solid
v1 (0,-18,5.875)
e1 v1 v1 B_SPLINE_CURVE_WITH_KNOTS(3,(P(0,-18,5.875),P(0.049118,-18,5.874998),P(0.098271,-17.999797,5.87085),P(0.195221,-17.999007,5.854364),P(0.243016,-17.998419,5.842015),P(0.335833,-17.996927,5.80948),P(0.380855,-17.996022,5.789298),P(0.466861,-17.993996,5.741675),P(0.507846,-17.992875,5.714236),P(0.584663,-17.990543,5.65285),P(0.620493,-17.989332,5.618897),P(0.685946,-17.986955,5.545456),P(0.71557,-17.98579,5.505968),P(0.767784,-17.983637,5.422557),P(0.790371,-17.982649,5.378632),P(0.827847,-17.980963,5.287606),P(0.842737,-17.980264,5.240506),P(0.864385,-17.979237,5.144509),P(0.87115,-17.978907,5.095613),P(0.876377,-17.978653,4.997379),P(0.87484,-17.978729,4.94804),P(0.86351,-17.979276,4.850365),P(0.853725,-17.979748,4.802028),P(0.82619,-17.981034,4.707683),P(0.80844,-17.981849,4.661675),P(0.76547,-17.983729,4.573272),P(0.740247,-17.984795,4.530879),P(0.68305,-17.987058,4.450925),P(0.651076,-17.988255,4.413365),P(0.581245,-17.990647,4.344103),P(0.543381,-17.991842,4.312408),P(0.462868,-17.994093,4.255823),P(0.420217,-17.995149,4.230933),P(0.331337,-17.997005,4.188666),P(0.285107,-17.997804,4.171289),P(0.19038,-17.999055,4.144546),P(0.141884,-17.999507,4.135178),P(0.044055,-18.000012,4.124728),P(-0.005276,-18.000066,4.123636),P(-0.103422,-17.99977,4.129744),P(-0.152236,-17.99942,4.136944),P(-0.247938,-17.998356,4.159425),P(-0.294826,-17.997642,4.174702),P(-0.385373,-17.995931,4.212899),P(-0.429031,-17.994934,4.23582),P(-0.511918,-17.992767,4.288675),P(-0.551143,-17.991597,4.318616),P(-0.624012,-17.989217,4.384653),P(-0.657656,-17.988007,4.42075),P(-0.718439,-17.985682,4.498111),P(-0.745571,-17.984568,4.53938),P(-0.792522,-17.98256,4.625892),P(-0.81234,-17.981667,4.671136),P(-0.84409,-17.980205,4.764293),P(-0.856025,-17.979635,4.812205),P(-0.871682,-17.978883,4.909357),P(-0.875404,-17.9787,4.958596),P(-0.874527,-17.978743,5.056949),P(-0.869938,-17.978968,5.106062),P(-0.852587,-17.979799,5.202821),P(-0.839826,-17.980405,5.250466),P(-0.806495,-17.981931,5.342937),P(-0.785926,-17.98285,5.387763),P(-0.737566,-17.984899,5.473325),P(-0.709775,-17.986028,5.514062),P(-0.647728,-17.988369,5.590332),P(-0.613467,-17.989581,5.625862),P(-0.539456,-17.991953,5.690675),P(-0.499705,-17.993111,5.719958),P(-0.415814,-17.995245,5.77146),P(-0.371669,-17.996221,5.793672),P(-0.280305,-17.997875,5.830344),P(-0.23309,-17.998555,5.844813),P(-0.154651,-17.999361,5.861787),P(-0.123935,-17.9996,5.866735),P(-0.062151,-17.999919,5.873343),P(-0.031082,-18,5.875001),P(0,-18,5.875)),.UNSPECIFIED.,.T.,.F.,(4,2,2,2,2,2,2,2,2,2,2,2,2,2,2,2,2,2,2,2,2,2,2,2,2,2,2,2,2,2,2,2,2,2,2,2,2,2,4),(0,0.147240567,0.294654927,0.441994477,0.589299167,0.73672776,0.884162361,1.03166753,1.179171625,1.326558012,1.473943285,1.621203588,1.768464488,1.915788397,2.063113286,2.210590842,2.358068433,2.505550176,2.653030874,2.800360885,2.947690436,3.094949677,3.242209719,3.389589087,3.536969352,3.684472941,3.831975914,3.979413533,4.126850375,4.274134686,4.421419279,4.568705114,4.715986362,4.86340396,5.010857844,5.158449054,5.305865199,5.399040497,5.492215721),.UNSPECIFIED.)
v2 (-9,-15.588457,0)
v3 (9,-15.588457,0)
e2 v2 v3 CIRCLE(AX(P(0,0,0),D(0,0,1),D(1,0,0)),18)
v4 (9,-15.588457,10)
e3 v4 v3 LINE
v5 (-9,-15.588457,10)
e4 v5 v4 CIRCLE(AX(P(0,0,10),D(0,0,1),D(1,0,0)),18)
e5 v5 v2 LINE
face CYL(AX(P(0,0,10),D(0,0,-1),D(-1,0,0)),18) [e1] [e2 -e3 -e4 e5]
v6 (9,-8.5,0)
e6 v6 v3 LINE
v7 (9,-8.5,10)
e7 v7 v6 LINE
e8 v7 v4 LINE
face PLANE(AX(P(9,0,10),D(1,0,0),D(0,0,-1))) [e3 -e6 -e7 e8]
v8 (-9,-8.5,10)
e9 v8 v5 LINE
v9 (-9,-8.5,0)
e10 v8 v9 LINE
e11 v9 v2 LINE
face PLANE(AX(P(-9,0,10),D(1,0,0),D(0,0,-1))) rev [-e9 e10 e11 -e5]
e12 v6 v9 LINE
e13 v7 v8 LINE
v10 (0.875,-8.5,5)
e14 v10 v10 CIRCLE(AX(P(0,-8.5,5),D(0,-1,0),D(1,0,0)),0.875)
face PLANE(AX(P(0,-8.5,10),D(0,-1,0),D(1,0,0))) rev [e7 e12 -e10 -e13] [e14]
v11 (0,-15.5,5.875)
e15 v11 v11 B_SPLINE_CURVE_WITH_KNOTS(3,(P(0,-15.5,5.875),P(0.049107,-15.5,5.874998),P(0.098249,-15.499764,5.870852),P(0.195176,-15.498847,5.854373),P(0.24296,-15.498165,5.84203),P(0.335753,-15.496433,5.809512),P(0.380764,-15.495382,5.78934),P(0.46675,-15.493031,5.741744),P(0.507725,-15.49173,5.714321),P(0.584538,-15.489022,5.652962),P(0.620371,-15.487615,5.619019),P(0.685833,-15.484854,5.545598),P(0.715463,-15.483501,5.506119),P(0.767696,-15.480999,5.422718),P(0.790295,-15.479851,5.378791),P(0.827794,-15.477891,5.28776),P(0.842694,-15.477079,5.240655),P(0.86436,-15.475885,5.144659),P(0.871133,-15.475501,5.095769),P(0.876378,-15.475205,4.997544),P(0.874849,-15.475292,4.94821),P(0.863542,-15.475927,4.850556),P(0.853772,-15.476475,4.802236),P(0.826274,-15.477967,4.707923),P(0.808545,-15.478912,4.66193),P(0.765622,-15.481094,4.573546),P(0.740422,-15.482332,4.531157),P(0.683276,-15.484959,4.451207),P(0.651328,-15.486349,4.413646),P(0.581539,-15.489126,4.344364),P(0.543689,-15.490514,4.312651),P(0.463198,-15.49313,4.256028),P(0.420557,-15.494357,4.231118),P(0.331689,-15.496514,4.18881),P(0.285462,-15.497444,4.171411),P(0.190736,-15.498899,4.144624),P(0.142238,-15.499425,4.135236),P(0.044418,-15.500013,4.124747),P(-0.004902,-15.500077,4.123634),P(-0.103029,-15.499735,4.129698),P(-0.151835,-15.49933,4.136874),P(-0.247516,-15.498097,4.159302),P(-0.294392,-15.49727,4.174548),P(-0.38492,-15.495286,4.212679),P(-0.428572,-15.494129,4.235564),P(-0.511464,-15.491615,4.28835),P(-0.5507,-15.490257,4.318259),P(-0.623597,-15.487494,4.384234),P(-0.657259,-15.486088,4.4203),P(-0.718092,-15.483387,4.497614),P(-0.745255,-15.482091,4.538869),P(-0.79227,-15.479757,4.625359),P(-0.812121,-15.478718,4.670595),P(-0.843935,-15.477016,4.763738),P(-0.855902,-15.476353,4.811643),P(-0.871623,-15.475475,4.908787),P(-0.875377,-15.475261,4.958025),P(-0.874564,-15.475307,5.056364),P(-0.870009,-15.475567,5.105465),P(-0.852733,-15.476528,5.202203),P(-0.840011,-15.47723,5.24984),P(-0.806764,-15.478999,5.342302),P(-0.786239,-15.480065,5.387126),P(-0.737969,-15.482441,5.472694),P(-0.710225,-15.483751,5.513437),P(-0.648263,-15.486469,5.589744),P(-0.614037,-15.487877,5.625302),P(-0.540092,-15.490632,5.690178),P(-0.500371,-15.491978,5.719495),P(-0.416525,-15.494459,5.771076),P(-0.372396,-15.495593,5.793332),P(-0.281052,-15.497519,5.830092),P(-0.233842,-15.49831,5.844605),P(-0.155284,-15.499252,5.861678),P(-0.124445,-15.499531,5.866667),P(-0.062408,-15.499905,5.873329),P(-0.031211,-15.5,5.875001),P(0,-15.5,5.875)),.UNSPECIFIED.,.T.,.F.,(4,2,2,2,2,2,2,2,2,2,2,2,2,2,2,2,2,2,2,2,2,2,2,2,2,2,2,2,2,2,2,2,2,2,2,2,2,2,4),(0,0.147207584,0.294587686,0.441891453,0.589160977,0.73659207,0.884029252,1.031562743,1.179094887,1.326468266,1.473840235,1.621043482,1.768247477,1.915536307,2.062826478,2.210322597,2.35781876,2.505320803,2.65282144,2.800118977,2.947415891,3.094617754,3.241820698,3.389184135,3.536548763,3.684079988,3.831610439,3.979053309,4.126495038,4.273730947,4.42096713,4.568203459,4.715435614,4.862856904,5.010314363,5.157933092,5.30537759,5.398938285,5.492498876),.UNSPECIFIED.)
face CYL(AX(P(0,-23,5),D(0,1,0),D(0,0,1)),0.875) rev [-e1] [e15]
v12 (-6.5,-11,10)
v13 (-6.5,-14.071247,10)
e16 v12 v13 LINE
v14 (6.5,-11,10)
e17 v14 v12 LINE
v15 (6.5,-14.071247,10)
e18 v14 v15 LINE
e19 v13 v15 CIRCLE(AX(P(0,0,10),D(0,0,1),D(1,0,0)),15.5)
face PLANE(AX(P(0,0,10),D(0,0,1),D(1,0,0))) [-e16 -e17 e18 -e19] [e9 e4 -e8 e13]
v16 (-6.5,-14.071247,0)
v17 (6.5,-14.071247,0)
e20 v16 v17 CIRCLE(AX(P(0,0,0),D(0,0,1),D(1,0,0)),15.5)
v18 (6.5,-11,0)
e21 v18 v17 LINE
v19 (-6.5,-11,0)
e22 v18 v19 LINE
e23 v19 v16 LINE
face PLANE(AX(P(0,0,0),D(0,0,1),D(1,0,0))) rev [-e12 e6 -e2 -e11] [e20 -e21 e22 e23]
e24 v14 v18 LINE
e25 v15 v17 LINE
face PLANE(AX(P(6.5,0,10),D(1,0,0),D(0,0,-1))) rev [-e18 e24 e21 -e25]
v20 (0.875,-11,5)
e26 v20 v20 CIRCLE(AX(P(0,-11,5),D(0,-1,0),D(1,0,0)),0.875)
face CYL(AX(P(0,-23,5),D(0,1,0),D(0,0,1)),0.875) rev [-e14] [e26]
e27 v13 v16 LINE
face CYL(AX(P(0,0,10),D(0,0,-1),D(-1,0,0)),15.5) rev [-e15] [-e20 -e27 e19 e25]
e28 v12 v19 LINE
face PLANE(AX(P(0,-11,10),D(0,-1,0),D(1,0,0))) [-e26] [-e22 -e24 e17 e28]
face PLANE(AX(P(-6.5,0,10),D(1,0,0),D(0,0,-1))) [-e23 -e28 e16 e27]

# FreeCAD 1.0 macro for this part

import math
import FreeCAD as App
import Part
import Sketcher

V = App.Vector
Q = App.Units.Quantity

doc = App.newDocument("Part")
body = doc.addObject("PartDesign::Body", "Body")

# Sketch on XY plane
sketch1 = body.newObject("Sketcher::SketchObject", "Sketch")
sketch1.AttachmentSupport = (doc.getObject("XY_Plane"), [""])
sketch1.MapMode = "FlatFace"
sketch1.addGeometry(Part.LineSegment(V(-9, -8.5, 0), V(-9, -15.6, 0)), False)
sketch1.addGeometry(Part.ArcOfCircle(Part.Circle(V(0, 0, 0), V(0, 0, 1), 18), math.radians(-120), math.radians(-60)), False)
sketch1.addGeometry(Part.LineSegment(V(9, -15.6, 0), V(9, -8.5, 0)), False)
sketch1.addGeometry(Part.LineSegment(V(9, -8.5, 0), V(-9, -8.5, 0)), False)
sketch1.addGeometry(Part.ArcOfCircle(Part.Circle(V(0, 0, 0), V(0, 0, 1), 15.5), math.radians(-90), math.radians(-65)), False)
sketch1.addGeometry(Part.ArcOfCircle(Part.Circle(V(0, 0, 0), V(0, 0, 1), 15.5), math.radians(-115), math.radians(-90)), False)
sketch1.addGeometry(Part.LineSegment(V(-6.5, -14.1, 0), V(-6.5, -11, 0)), False)
sketch1.addGeometry(Part.LineSegment(V(-6.5, -11, 0), V(6.5, -11, 0)), False)
sketch1.addGeometry(Part.LineSegment(V(6.5, -11, 0), V(6.5, -14.1, 0)), False)
sketch1.addConstraint(Sketcher.Constraint("Coincident", 0, 2, 1, 1))
sketch1.addConstraint(Sketcher.Constraint("Coincident", 1, 2, 2, 1))
sketch1.addConstraint(Sketcher.Constraint("Coincident", 2, 2, 3, 1))
sketch1.addConstraint(Sketcher.Constraint("Coincident", 3, 2, 0, 1))
sketch1.addConstraint(Sketcher.Constraint("Tangent", 4, 1, 5, 2))
sketch1.addConstraint(Sketcher.Constraint("Coincident", 5, 1, 6, 1))
sketch1.addConstraint(Sketcher.Constraint("Coincident", 6, 2, 7, 1))
sketch1.addConstraint(Sketcher.Constraint("Coincident", 7, 2, 8, 1))
sketch1.addConstraint(Sketcher.Constraint("Coincident", 8, 2, 4, 2))
sketch1.addConstraint(Sketcher.Constraint("Vertical", 0))
sketch1.addConstraint(Sketcher.Constraint("Vertical", 2))
sketch1.addConstraint(Sketcher.Constraint("Horizontal", 3))
sketch1.addConstraint(Sketcher.Constraint("Vertical", 6))
sketch1.addConstraint(Sketcher.Constraint("Horizontal", 7))
sketch1.addConstraint(Sketcher.Constraint("Vertical", 8))
sketch1.addConstraint(Sketcher.Constraint("Coincident", 1, 3, -1, 1))
sketch1.addConstraint(Sketcher.Constraint("Coincident", 4, 3, -1, 1))
sketch1.addConstraint(Sketcher.Constraint("Equal", 4, 5))
sketch1.addConstraint(Sketcher.Constraint("PointOnObject", 4, 1, -2))
sketch1.addConstraint(Sketcher.Constraint("Horizontal", 0, 2, 1, 2))
sketch1.addConstraint(Sketcher.Constraint("Horizontal", 5, 1, 8, 2))
sketch1.addConstraint(Sketcher.Constraint("Radius", 1, Q("18 mm")))
sketch1.addConstraint(Sketcher.Constraint("Radius", 4, Q("15.5 mm")))
sketch1.addConstraint(Sketcher.Constraint("DistanceX", 3, 2, 3, 1, Q("18 mm")))
sketch1.addConstraint(Sketcher.Constraint("DistanceX", 7, 1, 7, 2, Q("13 mm")))
sketch1.addConstraint(Sketcher.Constraint("DistanceY", 6, 2, -1, 1, Q("11 mm")))
sketch1.addConstraint(Sketcher.Constraint("DistanceY", 4, 1, 3, 2, Q("7 mm")))
pad1 = body.newObject("PartDesign::Pad", "Pad")
pad1.Profile = sketch1
pad1.Length = 10

# Sketch on XZ plane
sketch2 = body.newObject("Sketcher::SketchObject", "Sketch001")
sketch2.AttachmentSupport = (doc.getObject("XZ_Plane"), [""])
sketch2.MapMode = "FlatFace"
sketch2.addGeometry(Part.Circle(V(0, 5, 0), V(0, 0, 1), 0.9), False)
sketch2.addConstraint(Sketcher.Constraint("PointOnObject", 0, 3, -2))
sketch2.addConstraint(Sketcher.Constraint("Diameter", 0, Q("1.75 mm")))
sketch2.addConstraint(Sketcher.Constraint("DistanceY", -1, 1, 0, 3, Q("5 mm")))
pocket1 = body.newObject("PartDesign::Pocket", "Pocket")
pocket1.Profile = sketch2
pocket1.Length = 23
pocket1.Reversed = True

doc.recompute()
